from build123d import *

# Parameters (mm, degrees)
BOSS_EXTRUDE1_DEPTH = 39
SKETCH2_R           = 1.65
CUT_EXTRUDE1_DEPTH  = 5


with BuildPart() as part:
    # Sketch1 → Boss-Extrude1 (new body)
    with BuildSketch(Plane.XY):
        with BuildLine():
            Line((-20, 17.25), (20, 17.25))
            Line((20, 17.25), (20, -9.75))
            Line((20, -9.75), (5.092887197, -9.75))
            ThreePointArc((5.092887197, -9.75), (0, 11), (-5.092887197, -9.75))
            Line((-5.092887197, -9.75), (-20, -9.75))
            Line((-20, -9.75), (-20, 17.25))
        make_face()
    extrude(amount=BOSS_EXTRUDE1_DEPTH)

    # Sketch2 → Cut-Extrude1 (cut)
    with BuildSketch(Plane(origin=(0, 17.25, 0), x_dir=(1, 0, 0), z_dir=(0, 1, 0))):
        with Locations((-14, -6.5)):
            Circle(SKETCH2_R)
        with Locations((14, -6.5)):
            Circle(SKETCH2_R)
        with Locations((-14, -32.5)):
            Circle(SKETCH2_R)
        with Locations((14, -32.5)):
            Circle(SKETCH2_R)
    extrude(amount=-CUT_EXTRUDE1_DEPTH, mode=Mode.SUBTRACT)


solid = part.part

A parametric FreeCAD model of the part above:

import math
import FreeCAD as App
import Part
import Sketcher

doc = App.newDocument("Part")
params = doc.addObject("Spreadsheet::Sheet", "Params")
for row, (alias, value) in enumerate([
    ("sketch1_radius", "11 mm"),
    ("sketch1_width", "40 mm"),
    ("sketch1_height", "27 mm"),
    ("pad1_length", "39 mm"),
    ("sketch2_diameter", "3.3 mm"),
    ("pocket1_length", "5 mm"),
], start=1):
    params.set(f"A{row}", alias)
    params.set(f"B{row}", "=" + value)
    params.setAlias(f"B{row}", alias)

body = doc.addObject("PartDesign::Body", "Body")

sketch1 = body.newObject("Sketcher::SketchObject", "Sketch")
sketch1.AttachmentSupport = (doc.getObject("XY_Plane"), [""])
sketch1.MapMode = "FlatFace"
sketch1.addGeometry(Part.LineSegment(App.Vector(20, 17.25, 0), App.Vector(-20, 17.25, 0)), False)
sketch1.addGeometry(Part.LineSegment(App.Vector(-20, 17.25, 0), App.Vector(-20, -9.75, 0)), False)
sketch1.addGeometry(Part.LineSegment(App.Vector(-20, -9.75, 0), App.Vector(-5.092887, -9.75, 0)), False)
sketch1.addGeometry(Part.ArcOfCircle(Part.Circle(App.Vector(0, 0, 0), App.Vector(0, 0, 1), 11), math.radians(-62.419801), math.radians(242.419801)), False)
sketch1.addGeometry(Part.LineSegment(App.Vector(5.092887, -9.75, 0), App.Vector(20, -9.75, 0)), False)
sketch1.addGeometry(Part.LineSegment(App.Vector(20, -9.75, 0), App.Vector(20, 17.25, 0)), False)
sketch1.addConstraint(Sketcher.Constraint("Coincident", 0, 2, 1, 1))
sketch1.addConstraint(Sketcher.Constraint("Coincident", 1, 2, 2, 1))
sketch1.addConstraint(Sketcher.Constraint("Coincident", 2, 2, 3, 2))
sketch1.addConstraint(Sketcher.Constraint("Coincident", 3, 1, 4, 1))
sketch1.addConstraint(Sketcher.Constraint("Coincident", 4, 2, 5, 1))
sketch1.addConstraint(Sketcher.Constraint("Coincident", 5, 2, 0, 1))
sketch1.addConstraint(Sketcher.Constraint("Horizontal", 0))
sketch1.addConstraint(Sketcher.Constraint("Vertical", 1))
sketch1.addConstraint(Sketcher.Constraint("Horizontal", 2))
sketch1.addConstraint(Sketcher.Constraint("Horizontal", 4))
sketch1.addConstraint(Sketcher.Constraint("Vertical", 5))
sketch1.addConstraint(Sketcher.Constraint("Coincident", 3, 3, -1, 1))
sketch1.addConstraint(Sketcher.Constraint("Symmetric", 1, 2, 4, 2, -2))
sketch1.addConstraint(Sketcher.Constraint("Radius", 3, 11.0))
sketch1.addConstraint(Sketcher.Constraint("DistanceX", 0, 2, 0, 1, 40.0))
sketch1.addConstraint(Sketcher.Constraint("DistanceY", 1, 2, 1, 1, 27.0))
sketch1.addConstraint(Sketcher.Constraint("DistanceY", -1, 1, 0, 2, 17.25))
sketch1.setExpression("Constraints[13]", "Params.sketch1_radius")
sketch1.setExpression("Constraints[14]", "Params.sketch1_width")
sketch1.setExpression("Constraints[15]", "Params.sketch1_height")
pad1 = body.newObject("PartDesign::Pad", "Pad")
pad1.Profile = sketch1
pad1.setExpression("Length", "Params.pad1_length")

sketch2 = body.newObject("Sketcher::SketchObject", "Sketch001")
sketch2.AttachmentSupport = (doc.getObject("XZ_Plane"), [""])
sketch2.MapMode = "FlatFace"
sketch2.AttachmentOffset = App.Placement(App.Vector(0, 0, -17.25), App.Rotation())
sketch2.addGeometry(Part.Circle(App.Vector(-14, 6.5, 0), App.Vector(0, 0, 1), 1.65), False)
sketch2.addGeometry(Part.Circle(App.Vector(14, 6.5, 0), App.Vector(0, 0, 1), 1.65), False)
sketch2.addGeometry(Part.Circle(App.Vector(-14, 32.5, 0), App.Vector(0, 0, 1), 1.65), False)
sketch2.addGeometry(Part.Circle(App.Vector(14, 32.5, 0), App.Vector(0, 0, 1), 1.65), False)
sketch2.addConstraint(Sketcher.Constraint("Equal", 0, 1))
sketch2.addConstraint(Sketcher.Constraint("Equal", 1, 2))
sketch2.addConstraint(Sketcher.Constraint("Equal", 2, 3))
sketch2.addConstraint(Sketcher.Constraint("Symmetric", 0, 3, 1, 3, -2))
sketch2.addConstraint(Sketcher.Constraint("Symmetric", 2, 3, 3, 3, -2))
sketch2.addConstraint(Sketcher.Constraint("Vertical", 0, 3, 2, 3))
sketch2.addConstraint(Sketcher.Constraint("Diameter", 0, 3.3))
sketch2.addConstraint(Sketcher.Constraint("DistanceX", 0, 3, -1, 1, 14.0))
sketch2.addConstraint(Sketcher.Constraint("DistanceY", 0, 3, 2, 3, 26.0))
sketch2.addConstraint(Sketcher.Constraint("DistanceY", -1, 1, 0, 3, 6.5))
sketch2.setExpression("Constraints[6]", "Params.sketch2_diameter")
pocket1 = body.newObject("PartDesign::Pocket", "Pocket")
pocket1.Profile = sketch2
pocket1.setExpression("Length", "Params.pocket1_length")
pocket1.Reversed = True

doc.recompute()
